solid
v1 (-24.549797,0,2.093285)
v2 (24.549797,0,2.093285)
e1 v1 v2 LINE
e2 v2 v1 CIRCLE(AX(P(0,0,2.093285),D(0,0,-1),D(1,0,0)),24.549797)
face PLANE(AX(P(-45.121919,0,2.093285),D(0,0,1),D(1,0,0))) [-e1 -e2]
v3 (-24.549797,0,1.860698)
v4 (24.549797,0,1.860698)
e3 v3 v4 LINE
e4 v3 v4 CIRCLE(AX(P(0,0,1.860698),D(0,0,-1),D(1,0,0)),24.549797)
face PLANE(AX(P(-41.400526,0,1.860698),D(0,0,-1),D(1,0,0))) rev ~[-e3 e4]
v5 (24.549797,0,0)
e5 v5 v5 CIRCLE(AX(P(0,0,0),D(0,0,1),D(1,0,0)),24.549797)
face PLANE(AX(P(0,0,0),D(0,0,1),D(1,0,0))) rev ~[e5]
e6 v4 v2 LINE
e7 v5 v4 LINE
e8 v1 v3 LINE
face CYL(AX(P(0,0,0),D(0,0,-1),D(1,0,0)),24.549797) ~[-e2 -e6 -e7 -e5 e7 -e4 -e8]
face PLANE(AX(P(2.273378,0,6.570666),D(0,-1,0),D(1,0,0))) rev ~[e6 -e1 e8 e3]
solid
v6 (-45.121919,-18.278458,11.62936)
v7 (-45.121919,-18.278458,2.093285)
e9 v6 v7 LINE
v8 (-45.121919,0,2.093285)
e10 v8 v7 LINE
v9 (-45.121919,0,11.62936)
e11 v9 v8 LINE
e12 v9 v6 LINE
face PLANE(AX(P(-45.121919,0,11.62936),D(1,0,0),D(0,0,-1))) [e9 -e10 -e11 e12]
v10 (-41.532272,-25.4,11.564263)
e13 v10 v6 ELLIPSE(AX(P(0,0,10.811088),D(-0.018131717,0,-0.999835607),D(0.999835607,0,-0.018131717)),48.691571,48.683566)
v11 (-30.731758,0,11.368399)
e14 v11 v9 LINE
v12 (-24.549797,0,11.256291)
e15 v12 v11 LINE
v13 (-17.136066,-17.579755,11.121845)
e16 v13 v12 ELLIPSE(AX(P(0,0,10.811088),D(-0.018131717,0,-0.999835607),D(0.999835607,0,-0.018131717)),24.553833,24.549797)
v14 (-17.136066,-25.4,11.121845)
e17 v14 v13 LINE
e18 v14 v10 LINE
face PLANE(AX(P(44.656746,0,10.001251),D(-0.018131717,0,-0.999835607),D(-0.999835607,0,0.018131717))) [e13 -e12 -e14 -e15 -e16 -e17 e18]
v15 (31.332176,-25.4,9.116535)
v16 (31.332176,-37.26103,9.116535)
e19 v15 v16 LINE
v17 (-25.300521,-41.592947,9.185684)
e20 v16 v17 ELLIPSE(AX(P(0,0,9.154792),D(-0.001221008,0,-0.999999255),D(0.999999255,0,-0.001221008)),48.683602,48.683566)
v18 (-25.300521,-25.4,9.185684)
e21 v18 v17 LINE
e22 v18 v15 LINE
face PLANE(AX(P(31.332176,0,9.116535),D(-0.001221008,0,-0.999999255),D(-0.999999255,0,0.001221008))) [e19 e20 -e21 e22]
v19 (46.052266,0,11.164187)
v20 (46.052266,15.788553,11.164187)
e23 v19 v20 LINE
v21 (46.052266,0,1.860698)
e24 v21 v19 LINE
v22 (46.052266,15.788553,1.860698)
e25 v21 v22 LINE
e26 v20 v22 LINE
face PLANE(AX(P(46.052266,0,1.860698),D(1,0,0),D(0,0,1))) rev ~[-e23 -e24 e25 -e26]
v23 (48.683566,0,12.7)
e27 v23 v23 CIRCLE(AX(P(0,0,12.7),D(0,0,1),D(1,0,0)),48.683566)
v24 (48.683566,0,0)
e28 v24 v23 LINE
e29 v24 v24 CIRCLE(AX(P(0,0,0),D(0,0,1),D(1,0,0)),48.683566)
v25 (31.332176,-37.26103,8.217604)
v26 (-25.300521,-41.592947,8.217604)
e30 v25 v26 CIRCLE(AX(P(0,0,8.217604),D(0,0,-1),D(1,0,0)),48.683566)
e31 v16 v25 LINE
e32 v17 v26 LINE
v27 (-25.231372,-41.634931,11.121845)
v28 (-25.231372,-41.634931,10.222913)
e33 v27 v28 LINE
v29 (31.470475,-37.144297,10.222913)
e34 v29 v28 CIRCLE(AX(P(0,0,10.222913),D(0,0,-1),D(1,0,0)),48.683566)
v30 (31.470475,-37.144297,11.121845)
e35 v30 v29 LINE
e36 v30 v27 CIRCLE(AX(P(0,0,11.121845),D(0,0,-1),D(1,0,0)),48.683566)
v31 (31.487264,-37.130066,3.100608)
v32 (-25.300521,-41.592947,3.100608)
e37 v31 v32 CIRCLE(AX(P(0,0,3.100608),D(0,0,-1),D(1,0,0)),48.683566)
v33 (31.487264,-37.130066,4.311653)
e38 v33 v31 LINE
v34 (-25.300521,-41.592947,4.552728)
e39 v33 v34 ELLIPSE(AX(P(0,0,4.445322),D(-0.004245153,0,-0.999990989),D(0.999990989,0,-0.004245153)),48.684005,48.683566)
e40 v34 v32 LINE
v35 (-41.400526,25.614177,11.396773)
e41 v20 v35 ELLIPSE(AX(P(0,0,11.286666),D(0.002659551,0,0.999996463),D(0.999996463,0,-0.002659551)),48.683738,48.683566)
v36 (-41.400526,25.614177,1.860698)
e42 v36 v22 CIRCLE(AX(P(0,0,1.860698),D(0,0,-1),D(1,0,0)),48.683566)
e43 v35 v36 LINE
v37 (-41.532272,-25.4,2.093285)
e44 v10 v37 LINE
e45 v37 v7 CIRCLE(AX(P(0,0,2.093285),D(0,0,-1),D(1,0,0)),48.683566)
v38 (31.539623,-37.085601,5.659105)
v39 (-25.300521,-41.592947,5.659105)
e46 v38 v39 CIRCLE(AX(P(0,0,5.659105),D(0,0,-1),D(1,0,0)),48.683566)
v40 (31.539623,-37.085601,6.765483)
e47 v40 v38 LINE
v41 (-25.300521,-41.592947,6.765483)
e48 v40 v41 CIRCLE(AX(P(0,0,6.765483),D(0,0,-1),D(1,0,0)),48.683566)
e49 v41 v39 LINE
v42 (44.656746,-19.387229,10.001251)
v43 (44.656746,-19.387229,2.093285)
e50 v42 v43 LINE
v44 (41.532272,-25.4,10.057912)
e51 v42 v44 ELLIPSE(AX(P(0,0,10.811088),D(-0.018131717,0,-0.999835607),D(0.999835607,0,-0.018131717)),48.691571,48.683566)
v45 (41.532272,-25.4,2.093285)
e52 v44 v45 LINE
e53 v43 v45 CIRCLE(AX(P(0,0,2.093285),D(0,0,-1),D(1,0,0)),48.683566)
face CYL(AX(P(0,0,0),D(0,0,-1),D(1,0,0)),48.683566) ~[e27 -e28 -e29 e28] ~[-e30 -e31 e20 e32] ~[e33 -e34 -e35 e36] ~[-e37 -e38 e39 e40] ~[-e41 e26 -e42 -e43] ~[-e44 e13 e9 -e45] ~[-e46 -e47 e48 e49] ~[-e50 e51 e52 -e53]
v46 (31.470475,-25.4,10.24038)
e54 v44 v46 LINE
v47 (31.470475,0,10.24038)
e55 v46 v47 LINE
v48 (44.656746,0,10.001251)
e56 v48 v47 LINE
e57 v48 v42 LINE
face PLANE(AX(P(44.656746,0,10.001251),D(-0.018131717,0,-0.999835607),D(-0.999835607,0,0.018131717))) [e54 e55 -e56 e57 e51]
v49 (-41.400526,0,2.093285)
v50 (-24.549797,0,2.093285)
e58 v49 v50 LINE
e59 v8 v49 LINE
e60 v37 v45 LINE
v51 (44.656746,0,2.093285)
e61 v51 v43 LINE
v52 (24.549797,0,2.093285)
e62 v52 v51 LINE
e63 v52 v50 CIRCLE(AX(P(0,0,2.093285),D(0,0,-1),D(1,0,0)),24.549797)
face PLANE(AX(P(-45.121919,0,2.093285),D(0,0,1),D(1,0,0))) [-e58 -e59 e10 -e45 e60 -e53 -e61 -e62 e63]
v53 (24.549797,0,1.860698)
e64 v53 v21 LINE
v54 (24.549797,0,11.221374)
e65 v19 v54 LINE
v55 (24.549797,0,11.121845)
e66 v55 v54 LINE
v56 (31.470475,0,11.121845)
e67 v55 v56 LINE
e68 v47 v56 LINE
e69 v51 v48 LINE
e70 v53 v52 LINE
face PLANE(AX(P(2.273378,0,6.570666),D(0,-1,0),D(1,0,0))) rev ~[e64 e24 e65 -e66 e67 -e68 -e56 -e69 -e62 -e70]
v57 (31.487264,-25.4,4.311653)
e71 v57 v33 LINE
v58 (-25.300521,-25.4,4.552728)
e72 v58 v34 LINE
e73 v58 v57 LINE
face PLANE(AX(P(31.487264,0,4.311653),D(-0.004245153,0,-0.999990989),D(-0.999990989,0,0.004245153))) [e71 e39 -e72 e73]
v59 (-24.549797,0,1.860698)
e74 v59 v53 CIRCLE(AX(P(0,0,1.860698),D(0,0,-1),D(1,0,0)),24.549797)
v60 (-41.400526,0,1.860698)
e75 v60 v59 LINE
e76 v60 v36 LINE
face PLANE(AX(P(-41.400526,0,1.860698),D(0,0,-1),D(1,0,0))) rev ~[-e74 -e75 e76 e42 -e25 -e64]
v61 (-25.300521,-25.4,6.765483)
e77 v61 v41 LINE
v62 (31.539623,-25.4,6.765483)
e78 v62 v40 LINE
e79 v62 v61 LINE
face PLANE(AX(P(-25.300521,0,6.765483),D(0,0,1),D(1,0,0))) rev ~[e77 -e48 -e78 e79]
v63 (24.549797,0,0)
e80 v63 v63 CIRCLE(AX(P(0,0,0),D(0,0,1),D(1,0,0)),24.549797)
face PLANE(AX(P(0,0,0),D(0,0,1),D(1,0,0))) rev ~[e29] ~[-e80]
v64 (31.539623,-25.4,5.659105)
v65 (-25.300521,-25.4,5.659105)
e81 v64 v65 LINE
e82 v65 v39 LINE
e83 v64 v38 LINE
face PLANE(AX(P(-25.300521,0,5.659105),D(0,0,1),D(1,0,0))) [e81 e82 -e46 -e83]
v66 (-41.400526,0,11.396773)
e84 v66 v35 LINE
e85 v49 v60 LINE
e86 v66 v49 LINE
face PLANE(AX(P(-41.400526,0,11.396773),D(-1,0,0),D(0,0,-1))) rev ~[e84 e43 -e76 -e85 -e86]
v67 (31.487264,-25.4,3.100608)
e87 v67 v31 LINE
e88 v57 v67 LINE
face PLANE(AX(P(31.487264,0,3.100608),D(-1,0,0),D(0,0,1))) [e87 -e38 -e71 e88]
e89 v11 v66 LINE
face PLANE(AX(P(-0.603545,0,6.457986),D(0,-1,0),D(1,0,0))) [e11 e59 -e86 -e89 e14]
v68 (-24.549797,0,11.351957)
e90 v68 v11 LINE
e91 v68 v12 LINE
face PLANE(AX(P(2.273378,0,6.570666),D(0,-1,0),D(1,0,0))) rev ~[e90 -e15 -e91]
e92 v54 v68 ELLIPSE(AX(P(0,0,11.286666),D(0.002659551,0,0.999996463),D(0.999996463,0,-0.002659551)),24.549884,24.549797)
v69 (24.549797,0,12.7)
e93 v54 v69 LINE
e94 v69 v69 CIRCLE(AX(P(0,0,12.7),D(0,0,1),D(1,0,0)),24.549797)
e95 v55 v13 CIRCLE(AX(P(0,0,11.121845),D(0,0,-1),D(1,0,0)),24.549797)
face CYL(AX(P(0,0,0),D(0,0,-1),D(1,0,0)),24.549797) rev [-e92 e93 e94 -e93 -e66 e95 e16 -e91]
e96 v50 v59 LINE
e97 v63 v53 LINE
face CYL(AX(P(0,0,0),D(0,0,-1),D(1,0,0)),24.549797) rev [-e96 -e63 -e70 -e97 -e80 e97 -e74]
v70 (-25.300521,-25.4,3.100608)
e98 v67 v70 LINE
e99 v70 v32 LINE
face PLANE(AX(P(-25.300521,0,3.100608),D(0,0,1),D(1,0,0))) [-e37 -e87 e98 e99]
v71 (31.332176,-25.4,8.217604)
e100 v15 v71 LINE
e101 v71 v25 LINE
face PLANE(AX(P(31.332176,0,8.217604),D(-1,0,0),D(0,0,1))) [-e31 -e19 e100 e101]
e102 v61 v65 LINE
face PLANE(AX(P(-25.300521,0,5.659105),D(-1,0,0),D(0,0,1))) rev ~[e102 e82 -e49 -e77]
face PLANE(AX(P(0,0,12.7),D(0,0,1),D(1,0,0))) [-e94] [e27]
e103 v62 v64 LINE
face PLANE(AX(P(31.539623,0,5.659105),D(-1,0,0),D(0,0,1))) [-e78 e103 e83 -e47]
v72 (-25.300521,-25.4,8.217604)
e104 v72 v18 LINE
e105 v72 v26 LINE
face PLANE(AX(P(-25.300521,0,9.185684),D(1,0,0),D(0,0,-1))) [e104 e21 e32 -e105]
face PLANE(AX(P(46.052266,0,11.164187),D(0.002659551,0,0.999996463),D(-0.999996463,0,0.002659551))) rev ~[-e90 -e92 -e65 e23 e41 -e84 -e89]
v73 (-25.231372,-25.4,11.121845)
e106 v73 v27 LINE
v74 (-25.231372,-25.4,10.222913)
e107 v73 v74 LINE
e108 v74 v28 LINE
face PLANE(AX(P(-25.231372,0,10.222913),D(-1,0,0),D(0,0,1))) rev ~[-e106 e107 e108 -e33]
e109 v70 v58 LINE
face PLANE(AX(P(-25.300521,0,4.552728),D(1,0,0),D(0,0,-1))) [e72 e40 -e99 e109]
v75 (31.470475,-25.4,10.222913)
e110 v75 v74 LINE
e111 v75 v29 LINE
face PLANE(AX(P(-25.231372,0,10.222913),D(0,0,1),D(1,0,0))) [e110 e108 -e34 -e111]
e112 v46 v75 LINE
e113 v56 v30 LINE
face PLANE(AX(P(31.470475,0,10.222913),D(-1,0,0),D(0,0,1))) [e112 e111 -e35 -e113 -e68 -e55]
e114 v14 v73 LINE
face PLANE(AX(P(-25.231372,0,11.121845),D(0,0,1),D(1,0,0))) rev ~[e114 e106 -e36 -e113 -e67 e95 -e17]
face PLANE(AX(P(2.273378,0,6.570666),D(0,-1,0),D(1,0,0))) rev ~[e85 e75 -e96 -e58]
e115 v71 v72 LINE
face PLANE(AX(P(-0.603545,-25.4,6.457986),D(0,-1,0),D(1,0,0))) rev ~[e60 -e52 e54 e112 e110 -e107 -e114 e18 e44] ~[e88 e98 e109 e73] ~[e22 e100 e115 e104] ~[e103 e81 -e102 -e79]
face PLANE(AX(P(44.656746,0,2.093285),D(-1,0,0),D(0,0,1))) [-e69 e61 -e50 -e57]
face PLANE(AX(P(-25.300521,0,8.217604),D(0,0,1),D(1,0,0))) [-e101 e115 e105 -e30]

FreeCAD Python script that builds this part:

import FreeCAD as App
import Part
import Sketcher
Q = App.Units.Quantity


def add_polygon(sketch, points):
    """Adds a closed chain of lines whose ends are joined by coincident constraints."""
    first, n = sketch.GeometryCount, len(points)
    for a, b in zip(points, points[1:] + points[:1]):
        sketch.addGeometry(Part.LineSegment(App.Vector(*a, 0), App.Vector(*b, 0)), False)
    for i in range(n):
        sketch.addConstraint(Sketcher.Constraint("Coincident", first + i, 2, first + (i + 1) % n, 1))

doc = App.newDocument("Part")
body = doc.addObject("PartDesign::Body", "Body")

sketch1 = doc.addObject("Sketcher::SketchObject", "Sketch")
body.addObject(sketch1)
sketch1.AttachmentSupport = (doc.XY_Plane, [""])
sketch1.MapMode = "FlatFace"
sketch1.addGeometry(Part.Circle(App.Vector(0, 0, 0), App.Vector(0, 0, 1), 48.683566), False)
sketch1.addGeometry(Part.Circle(App.Vector(0, 0, 0), App.Vector(0, 0, 1), 24.549797), False)
sketch1.addConstraint(Sketcher.Constraint("Coincident", 0, 3, -1, 1))
sketch1.addConstraint(Sketcher.Constraint("Coincident", 1, 3, -1, 1))
sketch1.addConstraint(Sketcher.Constraint("Diameter", 0, Q("97.367132 mm")))
sketch1.addConstraint(Sketcher.Constraint("Diameter", 1, Q("49.099594 mm")))
pad1 = doc.addObject("PartDesign::Pad", "Pad")
body.addObject(pad1)
pad1.Profile = sketch1
pad1.Length = Q("0.5 in")
body2 = doc.addObject("PartDesign::Body", "Body001")

sketch2 = doc.addObject("Sketcher::SketchObject", "Sketch001")
body2.addObject(sketch2)
sketch2.AttachmentSupport = (doc.getObject("XY_Plane001"), [""])
sketch2.MapMode = "FlatFace"
sketch2.addGeometry(Part.Circle(App.Vector(0, 0, 0), App.Vector(0, 0, 1), 24.549797), False)
sketch2.addConstraint(Sketcher.Constraint("Coincident", 0, 3, -1, 1))
sketch2.addConstraint(Sketcher.Constraint("Diameter", 0, Q("49.099594 mm")))
pad2 = doc.addObject("PartDesign::Pad", "Pad001")
body2.addObject(pad2)
pad2.Profile = sketch2
pad2.Length = Q("0.2 in")
body3 = doc.addObject("PartDesign::Body", "Body002")

sketch3 = doc.addObject("Sketcher::SketchObject", "Sketch002")
body3.addObject(sketch3)
sketch3.AttachmentSupport = (doc.getObject("XZ_Plane002"), [""])
sketch3.MapMode = "FlatFace"
add_polygon(sketch3, [(46.052266, 11.164187), (-41.400526, 11.396773), (-41.400526, 1.860698), (46.052266, 1.860698)])
sketch3.addConstraint(Sketcher.Constraint("Vertical", 1))
sketch3.addConstraint(Sketcher.Constraint("Horizontal", 2))
sketch3.addConstraint(Sketcher.Constraint("Vertical", 3))
sketch3.addConstraint(Sketcher.Constraint("Distance", 0, Q("87.453101 mm")))
sketch3.addConstraint(Sketcher.Constraint("DistanceY", 3, 1, 3, 2, Q("9.303489 mm")))
sketch3.addConstraint(Sketcher.Constraint("DistanceY", 1, 2, 1, 1, Q("9.536075 mm")))
sketch3.addConstraint(Sketcher.Constraint("DistanceX", 0, 2, -1, 1, Q("41.400526 mm")))
sketch3.addConstraint(Sketcher.Constraint("DistanceY", -1, 1, 0, 2, Q("11.396773 mm")))
pad3 = doc.addObject("PartDesign::Pad", "Pad002")
body3.addObject(pad3)
pad3.Profile = sketch3
pad3.Length = Q("2 in")
pad3.Reversed = True
doc.recompute()

body4 = doc.addObject("PartDesign::Body", "Body003")
body4.BaseFeature = body3
boolean = doc.addObject("PartDesign::Boolean", "Boolean")
body.addObject(boolean)
boolean.Type = "Cut"
boolean.addObjects([body4])
doc.recompute()

boolean2 = doc.addObject("PartDesign::Boolean", "Boolean001")
body2.addObject(boolean2)
boolean2.Type = "Cut"
boolean2.addObjects([body3])
body5 = doc.addObject("PartDesign::Body", "Body004")

sketch4 = doc.addObject("Sketcher::SketchObject", "Sketch003")
body5.addObject(sketch4)
sketch4.AttachmentSupport = (doc.getObject("XZ_Plane004"), [""])
sketch4.MapMode = "FlatFace"
add_polygon(sketch4, [(44.656746, 10.001251), (-45.121919, 11.62936), (-45.121919, 2.093285), (44.656746, 2.093285)])
sketch4.addConstraint(Sketcher.Constraint("Vertical", 1))
sketch4.addConstraint(Sketcher.Constraint("Horizontal", 2))
sketch4.addConstraint(Sketcher.Constraint("Vertical", 3))
sketch4.addConstraint(Sketcher.Constraint("DistanceX", 2, 1, 2, 2, Q("89.778665 mm")))
sketch4.addConstraint(Sketcher.Constraint("DistanceY", 1, 2, 1, 1, Q("9.536075 mm")))
sketch4.addConstraint(Sketcher.Constraint("DistanceY", 3, 1, 3, 2, Q("7.907966 mm")))
sketch4.addConstraint(Sketcher.Constraint("DistanceX", 0, 2, -1, 1, Q("45.121919 mm")))
sketch4.addConstraint(Sketcher.Constraint("DistanceY", -1, 1, 0, 2, Q("11.62936 mm")))
pad4 = doc.addObject("PartDesign::Pad", "Pad003")
body5.addObject(pad4)
pad4.Profile = sketch4
pad4.Length = Q("1 in")
doc.recompute()

body6 = doc.addObject("PartDesign::Body", "Body005")
body6.BaseFeature = body5
boolean3 = doc.addObject("PartDesign::Boolean", "Boolean002")
body.addObject(boolean3)
boolean3.Type = "Cut"
boolean3.addObjects([body6])
doc.recompute()

sketch5 = doc.addObject("Sketcher::SketchObject", "Sketch004")
body.addObject(sketch5)
sketch5.AttachmentSupport = (doc.XZ_Plane, [""])
sketch5.MapMode = "FlatFace"
add_polygon(sketch5, [(-25.231372, 11.121845), (-25.231372, 10.222913), (31.470475, 10.222913), (31.470475, 11.121845)])
add_polygon(sketch5, [(31.332176, 9.116535), (-25.300521, 9.185684), (-25.300521, 8.217604), (31.332176, 8.217604)])
add_polygon(sketch5, [(-25.300521, 6.765483), (-25.300521, 5.659105), (31.539623, 5.659105), (31.539623, 6.765483)])
add_polygon(sketch5, [(31.487264, 4.311653), (-25.300521, 4.552728), (-25.300521, 3.100608), (31.487264, 3.100608)])
sketch5.addConstraint(Sketcher.Constraint("Vertical", 0))
sketch5.addConstraint(Sketcher.Constraint("Horizontal", 1))
sketch5.addConstraint(Sketcher.Constraint("Vertical", 2))
sketch5.addConstraint(Sketcher.Constraint("Horizontal", 3))
sketch5.addConstraint(Sketcher.Constraint("Vertical", 5))
sketch5.addConstraint(Sketcher.Constraint("Horizontal", 6))
sketch5.addConstraint(Sketcher.Constraint("Vertical", 7))
sketch5.addConstraint(Sketcher.Constraint("Vertical", 8))
sketch5.addConstraint(Sketcher.Constraint("Horizontal", 9))
sketch5.addConstraint(Sketcher.Constraint("Vertical", 10))
sketch5.addConstraint(Sketcher.Constraint("Horizontal", 11))
sketch5.addConstraint(Sketcher.Constraint("Vertical", 13))
sketch5.addConstraint(Sketcher.Constraint("Horizontal", 14))
sketch5.addConstraint(Sketcher.Constraint("Vertical", 15))
sketch5.addConstraint(Sketcher.Constraint("Vertical", 5, 2, 8, 2))
sketch5.addConstraint(Sketcher.Constraint("Vertical", 11, 2, 12, 2))
sketch5.addConstraint(Sketcher.Constraint("Equal", 2, 7))
sketch5.addConstraint(Sketcher.Constraint("DistanceY", 12, 2, 4, 2, Q("0.1823998 in")))
sketch5.addConstraint(Sketcher.Constraint("DistanceY", 5, 2, 5, 1, Q("0.96808 mm")))
sketch5.addConstraint(Sketcher.Constraint("DistanceY", 7, 1, 7, 2, Q("0.898931 mm")))
sketch5.addConstraint(Sketcher.Constraint("DistanceY", 13, 2, 13, 1, Q("1.45212 mm")))
sketch5.addConstraint(Sketcher.Constraint("DistanceX", 6, 2, 1, 2, Q("0.138299 mm")))
sketch5.addConstraint(Sketcher.Constraint("DistanceY", 8, 2, 5, 2, Q("2.558498 mm")))
sketch5.addConstraint(Sketcher.Constraint("DistanceY", 11, 2, 4, 2, Q("2.420202 mm")))
sketch5.addConstraint(Sketcher.Constraint("Distance", 4, Q("56.632739 mm")))
sketch5.addConstraint(Sketcher.Constraint("DistanceX", 1, 1, 1, 2, Q("56.701847 mm")))
sketch5.addConstraint(Sketcher.Constraint("DistanceX", 9, 1, 9, 2, Q("56.840144 mm")))
sketch5.addConstraint(Sketcher.Constraint("DistanceX", 14, 1, 14, 2, Q("56.787785 mm")))
sketch5.addConstraint(Sketcher.Constraint("DistanceY", 15, 1, 15, 2, Q("1.211045 mm")))
sketch5.addConstraint(Sketcher.Constraint("DistanceX", 4, 2, -1, 1, Q("25.300521 mm")))
sketch5.addConstraint(Sketcher.Constraint("DistanceY", 4, 2, 0, 2, Q("1.037229 mm")))
sketch5.addConstraint(Sketcher.Constraint("DistanceY", -1, 1, 0, 2, Q("10.222913 mm")))
pocket1 = doc.addObject("PartDesign::Pocket", "Pocket")
body.addObject(pocket1)
pocket1.Profile = sketch5
pocket1.Length = Q("5 in")
pocket1.Reversed = True
doc.recompute()

boolean4 = doc.addObject("PartDesign::Boolean", "Boolean003")
body2.addObject(boolean4)
boolean4.Type = "Cut"
boolean4.addObjects([body5])

doc.recompute()
